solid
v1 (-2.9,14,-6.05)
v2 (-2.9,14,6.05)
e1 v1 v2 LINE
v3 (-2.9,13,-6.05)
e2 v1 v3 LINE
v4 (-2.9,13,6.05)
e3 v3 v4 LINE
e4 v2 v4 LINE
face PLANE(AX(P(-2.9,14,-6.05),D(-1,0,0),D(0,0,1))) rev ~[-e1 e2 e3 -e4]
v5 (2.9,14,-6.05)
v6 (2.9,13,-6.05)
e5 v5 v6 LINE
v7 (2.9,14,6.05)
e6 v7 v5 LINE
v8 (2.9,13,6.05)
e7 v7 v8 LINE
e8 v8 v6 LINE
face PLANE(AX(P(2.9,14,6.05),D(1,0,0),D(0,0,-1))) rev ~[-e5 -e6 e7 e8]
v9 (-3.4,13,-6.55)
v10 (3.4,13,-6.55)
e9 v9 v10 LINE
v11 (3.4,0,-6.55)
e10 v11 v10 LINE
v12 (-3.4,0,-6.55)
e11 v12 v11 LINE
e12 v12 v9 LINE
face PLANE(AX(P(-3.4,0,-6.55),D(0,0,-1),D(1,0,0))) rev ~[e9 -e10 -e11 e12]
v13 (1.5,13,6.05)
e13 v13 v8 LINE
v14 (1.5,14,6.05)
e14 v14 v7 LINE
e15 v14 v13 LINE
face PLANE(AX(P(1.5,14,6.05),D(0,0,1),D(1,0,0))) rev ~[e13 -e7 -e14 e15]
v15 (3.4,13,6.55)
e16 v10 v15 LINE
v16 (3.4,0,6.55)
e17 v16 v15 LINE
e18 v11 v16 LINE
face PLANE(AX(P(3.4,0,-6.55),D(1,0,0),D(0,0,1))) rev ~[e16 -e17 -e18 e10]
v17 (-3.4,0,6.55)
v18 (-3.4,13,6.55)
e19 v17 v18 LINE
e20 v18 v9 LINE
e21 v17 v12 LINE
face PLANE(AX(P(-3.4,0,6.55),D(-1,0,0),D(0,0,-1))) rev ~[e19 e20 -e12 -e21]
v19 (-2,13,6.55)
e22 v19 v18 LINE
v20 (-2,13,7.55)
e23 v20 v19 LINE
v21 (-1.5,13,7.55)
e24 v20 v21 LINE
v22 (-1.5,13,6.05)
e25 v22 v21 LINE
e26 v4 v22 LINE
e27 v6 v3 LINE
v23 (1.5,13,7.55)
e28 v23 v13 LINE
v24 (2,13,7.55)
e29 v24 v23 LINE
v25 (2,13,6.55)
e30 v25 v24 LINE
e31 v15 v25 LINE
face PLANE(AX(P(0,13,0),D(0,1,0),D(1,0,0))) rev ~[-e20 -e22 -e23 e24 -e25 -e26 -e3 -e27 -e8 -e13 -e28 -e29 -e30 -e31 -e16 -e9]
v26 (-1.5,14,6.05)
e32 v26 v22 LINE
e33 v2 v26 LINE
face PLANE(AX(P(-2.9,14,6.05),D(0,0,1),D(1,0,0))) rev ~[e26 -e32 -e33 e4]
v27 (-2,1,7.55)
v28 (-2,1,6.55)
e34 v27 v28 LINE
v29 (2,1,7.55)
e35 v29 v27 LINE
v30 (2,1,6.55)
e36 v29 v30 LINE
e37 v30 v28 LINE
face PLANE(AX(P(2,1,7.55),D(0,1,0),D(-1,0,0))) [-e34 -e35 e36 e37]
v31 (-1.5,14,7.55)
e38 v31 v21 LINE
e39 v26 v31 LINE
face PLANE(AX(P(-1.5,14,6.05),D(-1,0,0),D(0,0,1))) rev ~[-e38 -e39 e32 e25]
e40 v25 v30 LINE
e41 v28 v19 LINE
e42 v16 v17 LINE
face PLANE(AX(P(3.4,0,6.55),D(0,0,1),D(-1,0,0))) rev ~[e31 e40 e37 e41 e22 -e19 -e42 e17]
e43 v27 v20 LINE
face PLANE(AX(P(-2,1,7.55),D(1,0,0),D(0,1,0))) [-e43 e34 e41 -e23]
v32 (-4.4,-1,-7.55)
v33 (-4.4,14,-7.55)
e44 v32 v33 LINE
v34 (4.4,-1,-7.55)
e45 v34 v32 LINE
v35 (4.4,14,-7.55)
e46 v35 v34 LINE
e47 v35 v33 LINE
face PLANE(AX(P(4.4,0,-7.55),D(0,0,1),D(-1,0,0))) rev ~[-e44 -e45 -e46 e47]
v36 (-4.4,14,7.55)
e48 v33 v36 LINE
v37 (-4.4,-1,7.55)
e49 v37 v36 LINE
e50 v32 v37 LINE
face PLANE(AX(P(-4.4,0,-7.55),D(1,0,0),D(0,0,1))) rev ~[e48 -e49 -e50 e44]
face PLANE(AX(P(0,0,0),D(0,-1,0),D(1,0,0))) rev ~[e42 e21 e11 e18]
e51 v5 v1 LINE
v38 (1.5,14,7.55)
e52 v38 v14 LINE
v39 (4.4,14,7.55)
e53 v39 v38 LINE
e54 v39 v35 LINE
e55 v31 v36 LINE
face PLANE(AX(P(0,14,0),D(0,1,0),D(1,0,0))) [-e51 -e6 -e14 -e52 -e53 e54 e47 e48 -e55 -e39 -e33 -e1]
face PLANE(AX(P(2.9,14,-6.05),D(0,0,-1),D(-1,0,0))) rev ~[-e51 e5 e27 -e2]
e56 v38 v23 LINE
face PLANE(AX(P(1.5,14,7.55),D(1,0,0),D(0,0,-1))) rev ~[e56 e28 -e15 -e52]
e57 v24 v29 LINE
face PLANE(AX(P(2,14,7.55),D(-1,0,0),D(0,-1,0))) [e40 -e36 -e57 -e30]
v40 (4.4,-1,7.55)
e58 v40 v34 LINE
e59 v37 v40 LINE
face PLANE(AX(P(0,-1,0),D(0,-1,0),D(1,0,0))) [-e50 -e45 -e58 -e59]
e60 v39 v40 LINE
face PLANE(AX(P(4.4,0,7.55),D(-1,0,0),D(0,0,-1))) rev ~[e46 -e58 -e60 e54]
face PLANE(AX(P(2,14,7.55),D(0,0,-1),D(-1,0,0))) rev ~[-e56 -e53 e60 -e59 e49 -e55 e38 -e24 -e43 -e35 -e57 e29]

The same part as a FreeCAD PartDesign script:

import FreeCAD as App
import Part
import Sketcher

V = App.Vector
Q = App.Units.Quantity


def add_polygon(sketch, points):
    """Adds a closed chain of lines whose ends are joined by coincident constraints."""
    first, n = sketch.GeometryCount, len(points)
    for a, b in zip(points, points[1:] + points[:1]):
        sketch.addGeometry(Part.LineSegment(App.Vector(*a, 0), App.Vector(*b, 0)), False)
    for i in range(n):
        sketch.addConstraint(Sketcher.Constraint("Coincident", first + i, 2, first + (i + 1) % n, 1))

doc = App.newDocument("Part")
params = doc.addObject("Spreadsheet::Sheet", "Params")
for row, (alias, value) in enumerate([
    ("sketch1_width", "6.8 mm"),
    ("sketch1_height", "13.1 mm"),
    ("pad1_length", "14 mm"),
    ("sketch2_width", "8.8 mm"),
    ("sketch2_height", "15.1 mm"),
    ("pad2_length", "1 mm"),
    ("sketch3_width", "4 mm"),
    ("sketch3_height", "13 mm"),
    ("pocket1_length", "1 mm"),
    ("sketch4_width", "0.5 mm"),
    ("sketch4_height", "1 mm"),
    ("sketch4_width2", "1.4 mm"),
    ("sketch4_width3", "6.8 mm"),
    ("sketch4_height2", "13.1 mm"),
    ("pad3_length", "1 mm"),
], start=1):
    params.set(f"A{row}", alias)
    params.set(f"B{row}", "=" + value)
    params.setAlias(f"B{row}", alias)

body = doc.addObject("PartDesign::Body", "Body")

sketch1 = body.newObject("Sketcher::SketchObject", "Sketch")
sketch1.AttachmentSupport = (doc.getObject("XZ_Plane"), [""])
sketch1.MapMode = "FlatFace"
add_polygon(sketch1, [(4.4, -7.55), (-4.4, -7.55), (-4.4, 7.55), (4.4, 7.55)])
add_polygon(sketch1, [(3.4, -6.55), (3.4, 6.55), (-3.4, 6.55), (-3.4, -6.55)])
sketch1.addConstraint([
    Sketcher.Constraint("Horizontal", 0),
    Sketcher.Constraint("Vertical", 1),
    Sketcher.Constraint("Horizontal", 2),
    Sketcher.Constraint("Vertical", 3),
    Sketcher.Constraint("Vertical", 4),
    Sketcher.Constraint("Horizontal", 5),
    Sketcher.Constraint("Vertical", 6),
    Sketcher.Constraint("Horizontal", 7),
    Sketcher.Constraint("Symmetric", 0, 2, 2, 2, -1, 1),
    Sketcher.Constraint("Symmetric", 4, 2, 6, 2, -1, 1),
    Sketcher.Constraint("DistanceX", 5, 2, 5, 1, Q("6.8 mm")),
    Sketcher.Constraint("DistanceY", 4, 1, 4, 2, Q("13.1 mm")),
    Sketcher.Constraint("DistanceX", 4, 2, 2, 2, Q("1 mm")),
    Sketcher.Constraint("DistanceY", 4, 2, 2, 2, Q("1 mm")),
])
sketch1.setExpression("Constraints[18]", "Params.sketch1_width")
sketch1.setExpression("Constraints[19]", "Params.sketch1_height")
pad1 = body.newObject("PartDesign::Pad", "Pad")
pad1.Profile = sketch1
pad1.setExpression("Length", "Params.pad1_length")
pad1.Reversed = True

sketch2 = body.newObject("Sketcher::SketchObject", "Sketch001")
sketch2.AttachmentSupport = (doc.getObject("XZ_Plane"), [""])
sketch2.MapMode = "FlatFace"
add_polygon(sketch2, [(4.4, 7.55), (-4.4, 7.55), (-4.4, -7.55), (4.4, -7.55)])
sketch2.addConstraint([
    Sketcher.Constraint("Horizontal", 0),
    Sketcher.Constraint("Vertical", 1),
    Sketcher.Constraint("Horizontal", 2),
    Sketcher.Constraint("Vertical", 3),
    Sketcher.Constraint("Symmetric", 0, 2, 2, 2, -1, 1),
    Sketcher.Constraint("DistanceX", 0, 2, 0, 1, Q("8.8 mm")),
    Sketcher.Constraint("DistanceY", 1, 2, 1, 1, Q("15.1 mm")),
])
sketch2.setExpression("Constraints[9]", "Params.sketch2_width")
sketch2.setExpression("Constraints[10]", "Params.sketch2_height")
pad2 = body.newObject("PartDesign::Pad", "Pad001")
pad2.Profile = sketch2
pad2.setExpression("Length", "Params.pad2_length")

sketch3 = body.newObject("Sketcher::SketchObject", "Sketch002")
sketch3.AttachmentSupport = (doc.getObject("XY_Plane"), [""])
sketch3.MapMode = "FlatFace"
sketch3.AttachmentOffset = App.Placement(V(0, 0, 7.55), App.Rotation())
add_polygon(sketch3, [(2, 14), (-2, 14), (-2, 1), (2, 1)])
sketch3.addConstraint([
    Sketcher.Constraint("Horizontal", 0),
    Sketcher.Constraint("Vertical", 1),
    Sketcher.Constraint("Horizontal", 2),
    Sketcher.Constraint("Vertical", 3),
    Sketcher.Constraint("DistanceX", 0, 2, 0, 1, Q("4 mm")),
    Sketcher.Constraint("DistanceY", -1, 1, 1, 2, Q("1 mm")),
    Sketcher.Constraint("DistanceY", 1, 2, 1, 1, Q("13 mm")),
    Sketcher.Constraint("DistanceX", 0, 2, -1, 1, Q("2 mm")),
])
sketch3.setExpression("Constraints[8]", "Params.sketch3_width")
sketch3.setExpression("Constraints[10]", "Params.sketch3_height")
pocket1 = body.newObject("PartDesign::Pocket", "Pocket")
pocket1.Profile = sketch3
pocket1.setExpression("Length", "Params.pocket1_length")

sketch4 = body.newObject("Sketcher::SketchObject", "Sketch003")
sketch4.AttachmentSupport = (doc.getObject("XZ_Plane"), [""])
sketch4.MapMode = "FlatFace"
sketch4.AttachmentOffset = App.Placement(V(0, 0, -14), App.Rotation())
add_polygon(sketch4, [(2, 7.55), (2, 6.55), (3.4, 6.55), (3.4, -6.55), (-3.4, -6.55), (-3.4, 6.55), (-2, 6.55), (-2, 7.55), (-1.5, 7.55), (-1.5, 6.05), (-2.9, 6.05), (-2.9, -6.05), (2.9, -6.05), (2.9, 6.05), (1.5, 6.05), (1.5, 7.55)])
sketch4.addConstraint([
    Sketcher.Constraint("Vertical", 0),
    Sketcher.Constraint("Horizontal", 1),
    Sketcher.Constraint("Vertical", 2),
    Sketcher.Constraint("Horizontal", 3),
    Sketcher.Constraint("Vertical", 4),
    Sketcher.Constraint("Horizontal", 5),
    Sketcher.Constraint("Vertical", 6),
    Sketcher.Constraint("Horizontal", 7),
    Sketcher.Constraint("Vertical", 8),
    Sketcher.Constraint("Horizontal", 9),
    Sketcher.Constraint("Vertical", 10),
    Sketcher.Constraint("Horizontal", 11),
    Sketcher.Constraint("Vertical", 12),
    Sketcher.Constraint("Horizontal", 13),
    Sketcher.Constraint("Vertical", 14),
    Sketcher.Constraint("Horizontal", 15),
    Sketcher.Constraint("Symmetric", 1, 2, 3, 2, -1, 1),
    Sketcher.Constraint("Symmetric", 9, 2, 11, 2, -1, 1),
    Sketcher.Constraint("Symmetric", 0, 2, 5, 2, -2),
    Sketcher.Constraint("Symmetric", 8, 2, 13, 2, -2),
    Sketcher.Constraint("Horizontal", 7, 2, 14, 2),
    Sketcher.Constraint("Equal", 5, 9),
    Sketcher.Constraint("DistanceX", 7, 1, 7, 2, Q("0.5 mm")),
    Sketcher.Constraint("DistanceY", 8, 2, 5, 2, Q("0.5 mm")),
    Sketcher.Constraint("DistanceY", 0, 2, 0, 1, Q("1 mm")),
    Sketcher.Constraint("DistanceX", 1, 1, 1, 2, Q("1.4 mm")),
    Sketcher.Constraint("DistanceX", 3, 2, 3, 1, Q("6.8 mm")),
    Sketcher.Constraint("DistanceY", 2, 2, 2, 1, Q("13.1 mm")),
])
sketch4.setExpression("Constraints[38]", "Params.sketch4_width")
sketch4.setExpression("Constraints[40]", "Params.sketch4_height")
sketch4.setExpression("Constraints[41]", "Params.sketch4_width2")
sketch4.setExpression("Constraints[42]", "Params.sketch4_width3")
sketch4.setExpression("Constraints[43]", "Params.sketch4_height2")
pad3 = body.newObject("PartDesign::Pad", "Pad002")
pad3.Profile = sketch4
pad3.setExpression("Length", "Params.pad3_length")

doc.recompute()
